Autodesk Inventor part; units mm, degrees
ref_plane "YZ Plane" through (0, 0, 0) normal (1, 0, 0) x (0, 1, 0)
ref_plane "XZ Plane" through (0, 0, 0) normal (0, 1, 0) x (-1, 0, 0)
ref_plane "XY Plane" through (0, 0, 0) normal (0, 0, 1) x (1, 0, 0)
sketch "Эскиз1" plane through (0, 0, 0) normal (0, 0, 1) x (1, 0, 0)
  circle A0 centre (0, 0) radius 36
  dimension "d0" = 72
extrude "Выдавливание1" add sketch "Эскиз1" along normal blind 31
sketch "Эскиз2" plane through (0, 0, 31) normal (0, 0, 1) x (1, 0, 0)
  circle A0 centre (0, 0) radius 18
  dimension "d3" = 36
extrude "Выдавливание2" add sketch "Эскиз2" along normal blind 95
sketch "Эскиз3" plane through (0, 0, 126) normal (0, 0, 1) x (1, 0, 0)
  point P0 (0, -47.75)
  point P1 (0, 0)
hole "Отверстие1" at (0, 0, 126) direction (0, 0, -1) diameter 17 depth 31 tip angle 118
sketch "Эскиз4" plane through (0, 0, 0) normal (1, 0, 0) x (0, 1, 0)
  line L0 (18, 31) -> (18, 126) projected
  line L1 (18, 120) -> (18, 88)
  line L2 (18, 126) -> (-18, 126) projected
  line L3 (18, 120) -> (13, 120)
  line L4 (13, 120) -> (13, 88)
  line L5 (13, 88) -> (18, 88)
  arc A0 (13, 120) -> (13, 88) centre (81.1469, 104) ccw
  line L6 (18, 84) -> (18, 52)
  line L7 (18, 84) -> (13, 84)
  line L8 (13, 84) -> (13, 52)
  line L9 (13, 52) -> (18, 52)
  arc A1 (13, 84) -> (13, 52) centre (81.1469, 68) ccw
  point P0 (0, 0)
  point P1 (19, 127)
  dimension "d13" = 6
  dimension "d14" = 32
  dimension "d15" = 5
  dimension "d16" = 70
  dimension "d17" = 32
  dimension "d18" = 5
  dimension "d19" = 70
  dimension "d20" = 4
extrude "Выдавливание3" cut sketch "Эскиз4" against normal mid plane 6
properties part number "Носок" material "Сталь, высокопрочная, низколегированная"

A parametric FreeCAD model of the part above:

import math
import FreeCAD as App
import Part
import Sketcher

V = App.Vector
Q = App.Units.Quantity

doc = App.newDocument("Part")
body = doc.addObject("PartDesign::Body", "Body")

# Sketch on XY plane
sketch1 = body.newObject("Sketcher::SketchObject", "Sketch")
sketch1.AttachmentSupport = (doc.getObject("XY_Plane"), [""])
sketch1.MapMode = "FlatFace"
sketch1.addGeometry(Part.Circle(V(0, 0, 0), V(0, 0, 1), 36), False)
sketch1.addConstraint([
    Sketcher.Constraint("Coincident", 0, 3, -1, 1),
    Sketcher.Constraint("Diameter", 0, Q("72 mm")),
])
pad1 = body.newObject("PartDesign::Pad", "Pad")
pad1.Profile = sketch1
pad1.Length = 31

# Sketch on XY plane
sketch2 = body.newObject("Sketcher::SketchObject", "Sketch001")
sketch2.AttachmentSupport = (doc.getObject("XY_Plane"), [""])
sketch2.MapMode = "FlatFace"
sketch2.AttachmentOffset = App.Placement(V(0, 0, 31), App.Rotation())
sketch2.addGeometry(Part.Circle(V(0, 0, 0), V(0, 0, 1), 18), False)
sketch2.addConstraint([
    Sketcher.Constraint("Coincident", 0, 3, -1, 1),
    Sketcher.Constraint("Diameter", 0, Q("36 mm")),
])
pad2 = body.newObject("PartDesign::Pad", "Pad001")
pad2.Profile = sketch2
pad2.Length = 95

# Sketch on XY plane
sketch3 = body.newObject("Sketcher::SketchObject", "Sketch002")
sketch3.AttachmentSupport = (doc.getObject("XY_Plane"), [""])
sketch3.MapMode = "FlatFace"
sketch3.AttachmentOffset = App.Placement(V(0, 0, 126), App.Rotation())
sketch3.addGeometry(Part.Circle(V(0, 0, 0), V(0, 0, 1), 8), False)
sketch3.addConstraint([
    Sketcher.Constraint("Coincident", 0, 3, -1, 1),
    Sketcher.Constraint("Diameter", 0, Q("17 mm")),
])
doc.recompute()
hole = body.newObject("PartDesign::Hole", "Hole")
hole.Profile = sketch3
hole.ThreadType = "None"
hole.Diameter = 17
hole.DepthType = "Dimension"
hole.Depth = 31
hole.DrillPoint = "Angled"
hole.DrillPointAngle = 118

# Sketch on YZ plane
sketch4 = body.newObject("Sketcher::SketchObject", "Sketch003")
sketch4.AttachmentSupport = (doc.getObject("YZ_Plane"), [""])
sketch4.MapMode = "FlatFace"
sketch4.addGeometry([
    Part.LineSegment(V(13, 52, 0), V(18, 52, 0)),  # 0
    Part.LineSegment(V(18, 52, 0), V(18, 84, 0)),  # 1
    Part.LineSegment(V(18, 84, 0), V(13, 84, 0)),  # 2
    Part.ArcOfCircle(Part.Circle(V(81, 68, 0), V(0, 0, 1), 70), math.radians(167), math.radians(193)),  # 3
    Part.LineSegment(V(13, 88, 0), V(18, 88, 0)),  # 4
    Part.LineSegment(V(18, 88, 0), V(18, 120, 0)),  # 5
    Part.LineSegment(V(18, 120, 0), V(13, 120, 0)),  # 6
    Part.ArcOfCircle(Part.Circle(V(81, 104, 0), V(0, 0, 1), 70), math.radians(167), math.radians(193)),  # 7
], False)
sketch4.addConstraint([
    Sketcher.Constraint("Coincident", 0, 2, 1, 1),
    Sketcher.Constraint("Coincident", 1, 2, 2, 1),
    Sketcher.Constraint("Coincident", 2, 2, 3, 1),
    Sketcher.Constraint("Coincident", 3, 2, 0, 1),
    Sketcher.Constraint("Coincident", 4, 2, 5, 1),
    Sketcher.Constraint("Coincident", 5, 2, 6, 1),
    Sketcher.Constraint("Coincident", 6, 2, 7, 1),
    Sketcher.Constraint("Coincident", 7, 2, 4, 1),
    Sketcher.Constraint("Horizontal", 0),
    Sketcher.Constraint("Vertical", 1),
    Sketcher.Constraint("Horizontal", 2),
    Sketcher.Constraint("Horizontal", 4),
    Sketcher.Constraint("Vertical", 5),
    Sketcher.Constraint("Horizontal", 6),
    Sketcher.Constraint("Equal", 3, 7),
    Sketcher.Constraint("Vertical", 3, 3, 7, 3),
    Sketcher.Constraint("Vertical", 2, 2, 3, 2),
    Sketcher.Constraint("Vertical", 1, 2, 4, 2),
    Sketcher.Constraint("Vertical", 3, 2, 6, 2),
    Sketcher.Constraint("Vertical", 6, 2, 7, 2),
    Sketcher.Constraint("Radius", 3, Q("70 mm")),
    Sketcher.Constraint("DistanceX", 0, 1, 0, 2, Q("5 mm")),
    Sketcher.Constraint("DistanceY", 1, 1, 1, 2, Q("32 mm")),
    Sketcher.Constraint("DistanceY", 1, 2, 4, 2, Q("4 mm")),
    Sketcher.Constraint("DistanceY", -1, 1, 3, 3, Q("68 mm")),
    Sketcher.Constraint("DistanceX", -1, 1, 0, 2, Q("18 mm")),
])
pocket1 = body.newObject("PartDesign::Pocket", "Pocket")
pocket1.Profile = sketch4
pocket1.Length = 6
pocket1.Midplane = True

doc.recompute()
